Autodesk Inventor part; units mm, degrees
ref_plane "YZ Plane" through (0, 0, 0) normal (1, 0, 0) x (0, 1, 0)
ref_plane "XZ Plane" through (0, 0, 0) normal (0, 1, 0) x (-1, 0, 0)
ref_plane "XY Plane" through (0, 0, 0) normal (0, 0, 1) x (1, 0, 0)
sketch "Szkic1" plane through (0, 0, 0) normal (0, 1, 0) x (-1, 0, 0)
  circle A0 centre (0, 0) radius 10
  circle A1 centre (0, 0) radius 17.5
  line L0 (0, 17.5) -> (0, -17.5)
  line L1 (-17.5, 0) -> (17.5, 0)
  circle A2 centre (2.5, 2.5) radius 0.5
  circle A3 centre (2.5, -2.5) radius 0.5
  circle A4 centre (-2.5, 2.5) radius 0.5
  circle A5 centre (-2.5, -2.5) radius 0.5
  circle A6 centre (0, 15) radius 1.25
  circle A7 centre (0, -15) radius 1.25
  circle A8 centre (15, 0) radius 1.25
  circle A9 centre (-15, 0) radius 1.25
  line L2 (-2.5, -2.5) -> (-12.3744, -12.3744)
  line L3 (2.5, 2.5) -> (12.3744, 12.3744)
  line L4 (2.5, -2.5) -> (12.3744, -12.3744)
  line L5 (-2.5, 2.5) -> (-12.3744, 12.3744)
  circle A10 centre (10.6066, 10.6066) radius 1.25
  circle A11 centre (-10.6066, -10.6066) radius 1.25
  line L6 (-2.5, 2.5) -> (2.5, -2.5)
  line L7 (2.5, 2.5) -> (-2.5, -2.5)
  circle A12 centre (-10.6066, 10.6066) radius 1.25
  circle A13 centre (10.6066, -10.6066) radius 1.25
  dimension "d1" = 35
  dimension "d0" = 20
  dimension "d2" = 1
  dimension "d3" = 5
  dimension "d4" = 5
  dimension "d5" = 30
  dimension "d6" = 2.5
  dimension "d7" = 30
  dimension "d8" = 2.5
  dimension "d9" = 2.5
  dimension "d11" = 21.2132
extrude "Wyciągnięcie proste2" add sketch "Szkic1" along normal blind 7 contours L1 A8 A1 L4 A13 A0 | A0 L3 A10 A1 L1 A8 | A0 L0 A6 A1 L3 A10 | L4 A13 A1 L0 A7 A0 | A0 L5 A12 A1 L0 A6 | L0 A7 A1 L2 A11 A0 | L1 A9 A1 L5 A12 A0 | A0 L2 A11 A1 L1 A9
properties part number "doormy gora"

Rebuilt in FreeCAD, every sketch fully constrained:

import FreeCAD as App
import Part
import Sketcher

doc = App.newDocument("Part")
body = doc.addObject("PartDesign::Body", "Body")

# Sketch on XZ plane
sketch1 = doc.addObject("Sketcher::SketchObject", "Sketch")
body.addObject(sketch1)
sketch1.AttachmentSupport = (doc.XZ_Plane, [""])
sketch1.MapMode = "FlatFace"
sketch1.addGeometry([
    Part.Circle(App.Vector(0, 0, 0), App.Vector(0, 0, 1), 17.5),  # 0
    Part.Circle(App.Vector(-15, 0, 0), App.Vector(0, 0, 1), 1.2),  # 1
    Part.Circle(App.Vector(-10.6, -10.6, 0), App.Vector(0, 0, 1), 1.2),  # 2
    Part.Circle(App.Vector(0, 0, 0), App.Vector(0, 0, 1), 10),  # 3
    Part.Circle(App.Vector(-10.6, 10.6, 0), App.Vector(0, 0, 1), 1.2),  # 4
    Part.Circle(App.Vector(0, -15, 0), App.Vector(0, 0, 1), 1.2),  # 5
    Part.Circle(App.Vector(0, 15, 0), App.Vector(0, 0, 1), 1.2),  # 6
    Part.Circle(App.Vector(10.6, -10.6, 0), App.Vector(0, 0, 1), 1.2),  # 7
    Part.Circle(App.Vector(10.6, 10.6, 0), App.Vector(0, 0, 1), 1.2),  # 8
    Part.Circle(App.Vector(15, 0, 0), App.Vector(0, 0, 1), 1.2),  # 9
], False)
sketch1.addConstraint([
    Sketcher.Constraint("Coincident", 0, 3, -1, 1),
    Sketcher.Constraint("Coincident", 3, 3, -1, 1),
    Sketcher.Constraint("Equal", 1, 2),
    Sketcher.Constraint("Equal", 2, 4),
    Sketcher.Constraint("Equal", 4, 5),
    Sketcher.Constraint("Equal", 5, 6),
    Sketcher.Constraint("Equal", 6, 7),
    Sketcher.Constraint("Equal", 7, 8),
    Sketcher.Constraint("Equal", 8, 9),
    Sketcher.Constraint("Symmetric", 5, 3, 6, 3, -1, 1),
    Sketcher.Constraint("Symmetric", 4, 3, 7, 3, -1, 1),
    Sketcher.Constraint("Symmetric", 2, 3, 8, 3, -1, 1),
    Sketcher.Constraint("Symmetric", 1, 3, 9, 3, -1, 1),
    Sketcher.Constraint("Symmetric", 2, 3, 7, 3, -2),
    Sketcher.Constraint("PointOnObject", 1, 3, -1),
    Sketcher.Constraint("PointOnObject", 5, 3, -2),
    Sketcher.Constraint("Diameter", 0, 35.0),
    Sketcher.Constraint("Diameter", 3, 20.0),
    Sketcher.Constraint("Diameter", 1, 2.5),
    Sketcher.Constraint("DistanceX", 1, 3, -1, 1, 15.0),
    Sketcher.Constraint("DistanceY", 5, 3, -1, 1, 15.0),
    Sketcher.Constraint("DistanceY", 2, 3, 4, 3, 21.2132),
    Sketcher.Constraint("DistanceX", 2, 3, 7, 3, 21.2132),
])
pad1 = doc.addObject("PartDesign::Pad", "Pad")
body.addObject(pad1)
pad1.Profile = sketch1
pad1.Length = 7
pad1.Reversed = True

doc.recompute()
